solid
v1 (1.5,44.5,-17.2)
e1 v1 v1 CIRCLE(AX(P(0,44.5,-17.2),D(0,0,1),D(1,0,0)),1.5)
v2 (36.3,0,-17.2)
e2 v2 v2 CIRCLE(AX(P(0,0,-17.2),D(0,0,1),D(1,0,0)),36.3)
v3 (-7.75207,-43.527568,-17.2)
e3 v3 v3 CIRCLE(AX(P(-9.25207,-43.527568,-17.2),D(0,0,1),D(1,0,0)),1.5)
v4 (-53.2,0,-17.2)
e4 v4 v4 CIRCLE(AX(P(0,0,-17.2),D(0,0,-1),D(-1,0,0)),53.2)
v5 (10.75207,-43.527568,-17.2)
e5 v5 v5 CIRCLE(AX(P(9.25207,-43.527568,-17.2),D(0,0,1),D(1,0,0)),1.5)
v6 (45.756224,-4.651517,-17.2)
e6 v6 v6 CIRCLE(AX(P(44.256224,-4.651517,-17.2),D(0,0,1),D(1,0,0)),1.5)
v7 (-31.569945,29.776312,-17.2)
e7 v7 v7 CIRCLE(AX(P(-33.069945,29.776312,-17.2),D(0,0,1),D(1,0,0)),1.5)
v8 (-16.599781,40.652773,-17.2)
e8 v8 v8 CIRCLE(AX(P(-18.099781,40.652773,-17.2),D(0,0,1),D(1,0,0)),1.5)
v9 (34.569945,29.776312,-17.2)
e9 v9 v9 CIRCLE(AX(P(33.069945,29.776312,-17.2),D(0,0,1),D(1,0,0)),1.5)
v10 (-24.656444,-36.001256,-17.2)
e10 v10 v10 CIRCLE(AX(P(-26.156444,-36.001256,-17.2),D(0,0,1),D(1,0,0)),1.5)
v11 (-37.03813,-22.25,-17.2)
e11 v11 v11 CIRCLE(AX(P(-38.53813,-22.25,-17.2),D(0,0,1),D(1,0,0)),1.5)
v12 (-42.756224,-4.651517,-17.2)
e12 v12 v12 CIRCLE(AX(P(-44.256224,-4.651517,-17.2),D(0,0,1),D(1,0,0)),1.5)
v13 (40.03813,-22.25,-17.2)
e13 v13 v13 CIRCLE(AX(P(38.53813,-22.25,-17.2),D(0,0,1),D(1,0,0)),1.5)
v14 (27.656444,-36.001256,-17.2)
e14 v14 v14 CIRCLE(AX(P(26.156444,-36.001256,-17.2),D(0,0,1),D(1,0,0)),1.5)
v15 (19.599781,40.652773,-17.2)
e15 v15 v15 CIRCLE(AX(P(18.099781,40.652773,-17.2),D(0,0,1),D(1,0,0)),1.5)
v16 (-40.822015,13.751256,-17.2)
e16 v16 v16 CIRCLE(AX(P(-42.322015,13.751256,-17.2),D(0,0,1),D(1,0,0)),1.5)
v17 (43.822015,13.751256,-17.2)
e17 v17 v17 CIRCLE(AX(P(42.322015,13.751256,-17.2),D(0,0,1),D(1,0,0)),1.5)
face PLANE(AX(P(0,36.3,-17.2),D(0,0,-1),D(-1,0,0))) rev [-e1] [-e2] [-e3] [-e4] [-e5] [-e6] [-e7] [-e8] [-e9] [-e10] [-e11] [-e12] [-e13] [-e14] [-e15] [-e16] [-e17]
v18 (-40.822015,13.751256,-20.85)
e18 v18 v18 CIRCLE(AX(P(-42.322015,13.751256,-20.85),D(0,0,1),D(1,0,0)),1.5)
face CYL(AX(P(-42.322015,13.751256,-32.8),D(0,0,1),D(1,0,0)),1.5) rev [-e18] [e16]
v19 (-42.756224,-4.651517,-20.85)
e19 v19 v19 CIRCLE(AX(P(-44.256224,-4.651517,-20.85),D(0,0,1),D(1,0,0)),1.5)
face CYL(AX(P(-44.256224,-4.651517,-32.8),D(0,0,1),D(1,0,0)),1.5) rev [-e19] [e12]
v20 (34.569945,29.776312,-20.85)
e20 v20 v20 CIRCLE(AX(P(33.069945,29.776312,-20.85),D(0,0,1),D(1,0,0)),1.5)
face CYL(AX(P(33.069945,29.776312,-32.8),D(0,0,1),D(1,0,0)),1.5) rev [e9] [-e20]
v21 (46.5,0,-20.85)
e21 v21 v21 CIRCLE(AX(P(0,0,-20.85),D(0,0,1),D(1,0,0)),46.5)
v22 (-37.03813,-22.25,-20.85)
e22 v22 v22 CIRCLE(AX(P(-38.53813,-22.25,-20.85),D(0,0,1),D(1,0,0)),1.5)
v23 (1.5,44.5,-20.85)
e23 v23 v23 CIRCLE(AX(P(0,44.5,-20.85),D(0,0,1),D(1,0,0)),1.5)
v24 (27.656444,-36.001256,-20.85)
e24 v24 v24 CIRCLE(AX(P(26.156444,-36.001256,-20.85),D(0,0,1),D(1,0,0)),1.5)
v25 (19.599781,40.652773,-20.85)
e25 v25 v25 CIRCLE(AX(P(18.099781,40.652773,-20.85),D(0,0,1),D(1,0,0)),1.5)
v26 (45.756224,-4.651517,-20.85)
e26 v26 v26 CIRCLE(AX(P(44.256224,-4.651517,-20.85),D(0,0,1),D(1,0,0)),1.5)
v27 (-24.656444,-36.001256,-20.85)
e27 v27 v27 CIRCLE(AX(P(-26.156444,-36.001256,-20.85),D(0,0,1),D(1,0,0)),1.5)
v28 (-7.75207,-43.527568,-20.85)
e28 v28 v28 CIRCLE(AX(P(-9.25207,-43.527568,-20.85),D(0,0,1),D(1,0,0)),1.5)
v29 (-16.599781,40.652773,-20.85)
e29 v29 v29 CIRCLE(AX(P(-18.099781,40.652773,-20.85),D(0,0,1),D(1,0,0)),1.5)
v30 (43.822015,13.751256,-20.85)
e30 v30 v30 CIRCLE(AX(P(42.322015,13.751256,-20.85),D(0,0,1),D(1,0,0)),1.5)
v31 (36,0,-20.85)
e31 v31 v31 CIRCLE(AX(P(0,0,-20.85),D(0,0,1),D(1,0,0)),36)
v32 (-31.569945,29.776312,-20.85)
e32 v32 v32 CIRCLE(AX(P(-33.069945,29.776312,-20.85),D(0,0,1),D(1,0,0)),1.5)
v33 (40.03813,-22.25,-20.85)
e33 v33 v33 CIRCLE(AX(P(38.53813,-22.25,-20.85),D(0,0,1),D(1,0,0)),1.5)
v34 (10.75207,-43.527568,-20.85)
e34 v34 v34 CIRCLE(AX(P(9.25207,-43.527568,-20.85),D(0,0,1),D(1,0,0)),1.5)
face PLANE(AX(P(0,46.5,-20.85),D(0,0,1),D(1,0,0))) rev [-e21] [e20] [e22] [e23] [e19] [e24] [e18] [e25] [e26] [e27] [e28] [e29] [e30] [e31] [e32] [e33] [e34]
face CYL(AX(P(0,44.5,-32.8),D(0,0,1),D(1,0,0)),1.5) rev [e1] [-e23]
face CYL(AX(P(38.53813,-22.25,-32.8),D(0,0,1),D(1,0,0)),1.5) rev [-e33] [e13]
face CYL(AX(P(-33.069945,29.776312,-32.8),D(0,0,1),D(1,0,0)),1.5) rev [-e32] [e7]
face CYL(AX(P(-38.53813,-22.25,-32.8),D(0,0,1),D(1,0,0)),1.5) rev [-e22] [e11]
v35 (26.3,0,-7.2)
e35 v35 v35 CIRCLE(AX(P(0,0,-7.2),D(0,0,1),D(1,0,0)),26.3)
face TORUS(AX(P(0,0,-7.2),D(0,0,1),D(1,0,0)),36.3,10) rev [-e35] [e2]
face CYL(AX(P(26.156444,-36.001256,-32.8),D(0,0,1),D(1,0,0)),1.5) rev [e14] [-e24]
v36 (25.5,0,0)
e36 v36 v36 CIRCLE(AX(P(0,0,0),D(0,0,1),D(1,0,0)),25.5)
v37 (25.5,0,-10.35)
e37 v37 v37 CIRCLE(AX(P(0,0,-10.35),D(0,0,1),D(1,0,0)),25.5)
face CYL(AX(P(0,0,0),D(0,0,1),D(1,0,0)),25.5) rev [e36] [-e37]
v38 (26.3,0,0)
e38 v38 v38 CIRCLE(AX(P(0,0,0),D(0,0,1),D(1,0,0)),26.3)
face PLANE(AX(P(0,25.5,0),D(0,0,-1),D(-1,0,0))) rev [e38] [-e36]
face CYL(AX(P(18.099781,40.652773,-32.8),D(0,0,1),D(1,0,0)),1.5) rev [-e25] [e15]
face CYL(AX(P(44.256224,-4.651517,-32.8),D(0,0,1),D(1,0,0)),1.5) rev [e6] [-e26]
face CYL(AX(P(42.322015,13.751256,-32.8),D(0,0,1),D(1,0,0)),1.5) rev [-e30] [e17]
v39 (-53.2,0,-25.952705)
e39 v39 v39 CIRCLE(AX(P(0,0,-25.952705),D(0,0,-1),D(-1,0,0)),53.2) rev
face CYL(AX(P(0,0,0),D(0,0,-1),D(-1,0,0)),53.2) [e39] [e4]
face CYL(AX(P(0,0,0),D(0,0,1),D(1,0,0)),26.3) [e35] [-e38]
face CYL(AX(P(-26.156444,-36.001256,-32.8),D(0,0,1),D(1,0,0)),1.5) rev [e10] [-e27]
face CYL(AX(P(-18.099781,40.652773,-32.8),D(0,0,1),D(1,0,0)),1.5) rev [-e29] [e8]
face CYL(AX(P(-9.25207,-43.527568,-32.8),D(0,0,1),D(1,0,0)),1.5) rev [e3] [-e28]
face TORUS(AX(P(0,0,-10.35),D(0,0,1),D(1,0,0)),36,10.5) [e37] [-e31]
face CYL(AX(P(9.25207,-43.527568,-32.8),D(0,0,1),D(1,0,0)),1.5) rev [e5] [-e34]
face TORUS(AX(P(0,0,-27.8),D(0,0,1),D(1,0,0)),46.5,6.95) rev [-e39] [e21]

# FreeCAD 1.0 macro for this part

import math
import FreeCAD as App
import Part
import Sketcher
from FreeCAD import Vector

doc = App.newDocument("Part")
body = doc.addObject("PartDesign::Body", "Body")

# Sketch on YZ plane
sketch1 = body.newObject("Sketcher::SketchObject", "Sketch")
sketch1.AttachmentSupport = (doc.getObject("YZ_Plane"), [""])
sketch1.MapMode = "FlatFace"
sketch1.addGeometry([
    Part.LineSegment(Vector(26.3, 0, 0), Vector(25.5, 0, 0)),  # 0
    Part.LineSegment(Vector(25.5, 0, 0), Vector(25.5, -10.3, 0)),  # 1
    Part.ArcOfCircle(Part.Circle(Vector(36, -10.3, 0), Vector(0, 0, 1), 10.5), math.radians(-180), math.radians(-90)),  # 2
    Part.LineSegment(Vector(36, -20.9, 0), Vector(46.5, -20.9, 0)),  # 3
    Part.ArcOfCircle(Part.Circle(Vector(46.5, -27.8, 0), Vector(0, 0, 1), 7), math.radians(0), math.radians(90)),  # 4
    Part.LineSegment(Vector(53.5, -27.8, 0), Vector(54.6, -27.8, 0)),  # 5
    Part.LineSegment(Vector(54.6, -27.8, 0), Vector(54.6, -32.8, 0)),  # 6
    Part.LineSegment(Vector(54.6, -32.8, 0), Vector(57.1, -32.8, 0)),  # 7
    Part.LineSegment(Vector(57.1, -32.8, 0), Vector(57.1, -22, 0)),  # 8
    Part.LineSegment(Vector(57.1, -22, 0), Vector(56, -22, 0)),  # 9
    Part.LineSegment(Vector(56, -22, 0), Vector(56, -17.2, 0)),  # 10
    Part.LineSegment(Vector(56, -17.2, 0), Vector(36.3, -17.2, 0)),  # 11
    Part.ArcOfCircle(Part.Circle(Vector(36.3, -7.2, 0), Vector(0, 0, 1), 10), math.radians(180), math.radians(270)),  # 12
    Part.LineSegment(Vector(26.3, -7.2, 0), Vector(26.3, 0, 0)),  # 13
], False)
sketch1.addConstraint([
    Sketcher.Constraint("Coincident", 0, 2, 1, 1),
    Sketcher.Constraint("Tangent", 1, 2, 2, 1),
    Sketcher.Constraint("Tangent", 2, 2, 3, 1),
    Sketcher.Constraint("Tangent", 3, 2, 4, 2),
    Sketcher.Constraint("Coincident", 4, 1, 5, 1),
    Sketcher.Constraint("Coincident", 5, 2, 6, 1),
    Sketcher.Constraint("Coincident", 6, 2, 7, 1),
    Sketcher.Constraint("Coincident", 7, 2, 8, 1),
    Sketcher.Constraint("Coincident", 8, 2, 9, 1),
    Sketcher.Constraint("Coincident", 9, 2, 10, 1),
    Sketcher.Constraint("Coincident", 10, 2, 11, 1),
    Sketcher.Constraint("Tangent", 11, 2, 12, 2),
    Sketcher.Constraint("Tangent", 12, 1, 13, 1),
    Sketcher.Constraint("Coincident", 13, 2, 0, 1),
    Sketcher.Constraint("Horizontal", 0),
    Sketcher.Constraint("Vertical", 1),
    Sketcher.Constraint("Horizontal", 3),
    Sketcher.Constraint("Horizontal", 5),
    Sketcher.Constraint("Vertical", 6),
    Sketcher.Constraint("Horizontal", 7),
    Sketcher.Constraint("Vertical", 8),
    Sketcher.Constraint("Horizontal", 9),
    Sketcher.Constraint("Vertical", 10),
    Sketcher.Constraint("Horizontal", 11),
    Sketcher.Constraint("Vertical", 13),
    Sketcher.Constraint("PointOnObject", 0, 2, -1),
    Sketcher.Constraint("Equal", 5, 9),
    Sketcher.Constraint("Radius", 12, 10.0),
    Sketcher.Constraint("Radius", 2, 10.5),
    Sketcher.Constraint("DistanceY", 6, 2, 6, 1, 5.0),
    Sketcher.Constraint("Radius", 4, 6.95),
    Sketcher.Constraint("DistanceX", 0, 2, 0, 1, 0.8),
    Sketcher.Constraint("DistanceX", 3, 1, 3, 2, 10.5),
    Sketcher.Constraint("DistanceX", 11, 2, 11, 1, 19.7),
    Sketcher.Constraint("DistanceY", 8, 1, 8, 2, 10.8),
    Sketcher.Constraint("DistanceY", 10, 1, 10, 2, 4.8),
    Sketcher.Constraint("DistanceY", 13, 1, 13, 2, 7.2),
    Sketcher.Constraint("DistanceX", -1, 1, 2, 3, 36.0),
    Sketcher.Constraint("DistanceY", 6, 2, 4, 3, 5.0),
    Sketcher.Constraint("DistanceX", 5, 1, 5, 2, 1.15),
])
revolution = body.newObject("PartDesign::Revolution", "Revolution")
revolution.Profile = sketch1
revolution.ReferenceAxis = (sketch1, ["V_Axis"])
revolution.Angle = 360

# Sketch on XY plane
sketch2 = body.newObject("Sketcher::SketchObject", "Sketch001")
sketch2.AttachmentSupport = (doc.getObject("XY_Plane"), [""])
sketch2.MapMode = "FlatFace"
sketch2.AttachmentOffset = App.Placement(Vector(0, 0, -17.2), App.Rotation())
sketch2.addGeometry([
    Part.Circle(Vector(0, 44.5, 0), Vector(0, 0, 1), 1.5),  # 0
    Part.Circle(Vector(18.1, 40.7, 0), Vector(0, 0, 1), 1.5),  # 1
    Part.Circle(Vector(33.1, 29.8, 0), Vector(0, 0, 1), 1.5),  # 2
    Part.Circle(Vector(42.3, 13.8, 0), Vector(0, 0, 1), 1.5),  # 3
    Part.Circle(Vector(44.3, -4.7, 0), Vector(0, 0, 1), 1.5),  # 4
    Part.Circle(Vector(38.5, -22.2, 0), Vector(0, 0, 1), 1.5),  # 5
    Part.Circle(Vector(26.2, -36, 0), Vector(0, 0, 1), 1.5),  # 6
    Part.Circle(Vector(9.3, -43.5, 0), Vector(0, 0, 1), 1.5),  # 7
    Part.Circle(Vector(-9.3, -43.5, 0), Vector(0, 0, 1), 1.5),  # 8
    Part.Circle(Vector(-26.2, -36, 0), Vector(0, 0, 1), 1.5),  # 9
    Part.Circle(Vector(-38.5, -22.2, 0), Vector(0, 0, 1), 1.5),  # 10
    Part.Circle(Vector(-44.3, -4.7, 0), Vector(0, 0, 1), 1.5),  # 11
    Part.Circle(Vector(-42.3, 13.8, 0), Vector(0, 0, 1), 1.5),  # 12
    Part.Circle(Vector(-33.1, 29.8, 0), Vector(0, 0, 1), 1.5),  # 13
    Part.Circle(Vector(-18.1, 40.7, 0), Vector(0, 0, 1), 1.5),  # 14
], False)
sketch2.addConstraint([
    Sketcher.Constraint("Equal", 0, 1),
    Sketcher.Constraint("Equal", 1, 2),
    Sketcher.Constraint("Equal", 2, 3),
    Sketcher.Constraint("Equal", 3, 4),
    Sketcher.Constraint("Equal", 4, 5),
    Sketcher.Constraint("Equal", 5, 6),
    Sketcher.Constraint("Equal", 6, 7),
    Sketcher.Constraint("Equal", 7, 8),
    Sketcher.Constraint("Equal", 8, 9),
    Sketcher.Constraint("Equal", 9, 10),
    Sketcher.Constraint("Equal", 10, 11),
    Sketcher.Constraint("Equal", 11, 12),
    Sketcher.Constraint("Equal", 12, 13),
    Sketcher.Constraint("Equal", 13, 14),
    Sketcher.Constraint("Symmetric", 7, 3, 8, 3, -2),
    Sketcher.Constraint("Symmetric", 6, 3, 9, 3, -2),
    Sketcher.Constraint("Symmetric", 5, 3, 10, 3, -2),
    Sketcher.Constraint("Symmetric", 4, 3, 11, 3, -2),
    Sketcher.Constraint("Symmetric", 3, 3, 12, 3, -2),
    Sketcher.Constraint("Symmetric", 2, 3, 13, 3, -2),
    Sketcher.Constraint("Symmetric", 1, 3, 14, 3, -2),
    Sketcher.Constraint("PointOnObject", 0, 3, -2),
    Sketcher.Constraint("Diameter", 0, 3.0),
    Sketcher.Constraint("DistanceY", -1, 1, 0, 3, 44.5),
    Sketcher.Constraint("DistanceY", 5, 3, -1, 1, 22.25),
    Sketcher.Constraint("DistanceX", 6, 3, 2, 3, 6.913501),
    Sketcher.Constraint("DistanceX", 8, 3, 5, 3, 47.790201),
    Sketcher.Constraint("DistanceX", -1, 1, 1, 3, 18.099781),
    Sketcher.Constraint("DistanceY", -1, 1, 2, 3, 29.776312),
    Sketcher.Constraint("DistanceX", -1, 1, 5, 3, 38.53813),
    Sketcher.Constraint("DistanceY", 7, 3, -1, 1, 43.527568),
    Sketcher.Constraint("DistanceY", 2, 3, 1, 3, 10.876461),
    Sketcher.Constraint("DistanceX", 2, 3, 3, 3, 9.25207),
    Sketcher.Constraint("DistanceX", 3, 3, 4, 3, 1.934209),
    Sketcher.Constraint("DistanceY", 4, 3, 2, 3, 34.427829),
    Sketcher.Constraint("DistanceY", 6, 3, 4, 3, 31.34974),
    Sketcher.Constraint("DistanceX", 9, 3, 4, 3, 70.412668),
    Sketcher.Constraint("DistanceY", -1, 1, 3, 3, 13.751256),
])
pocket1 = body.newObject("PartDesign::Pocket", "Pocket")
pocket1.Profile = sketch2
pocket1.Type = "ThroughAll"

# Sketch on XZ plane
sketch3 = body.newObject("Sketcher::SketchObject", "Sketch002")
sketch3.AttachmentSupport = (doc.getObject("XZ_Plane"), [""])
sketch3.MapMode = "FlatFace"
sketch3.AttachmentOffset = App.Placement(Vector(0, 0, -57.5), App.Rotation())
sketch3.addGeometry(Part.Circle(Vector(0, -19.5, 0), Vector(0, 0, 1), 1), False)
sketch3.addConstraint([
    Sketcher.Constraint("PointOnObject", 0, 3, -2),
    Sketcher.Constraint("Diameter", 0, 2.0),
    Sketcher.Constraint("DistanceY", 0, 3, -1, 1, 19.5),
])
pocket2 = body.newObject("PartDesign::Pocket", "Pocket001")
pocket2.Profile = sketch3
pocket2.Length = 3
pocket2.Reversed = True
doc.recompute()

polarpattern = body.newObject("PartDesign::PolarPattern", "PolarPattern")
polarpattern.Originals = [pocket2]
polarpattern.Axis = (doc.getObject("Z_Axis"), [""])
polarpattern.Angle = 360
polarpattern.Occurrences = 4
body.Tip = polarpattern

# Sketch on XY plane
sketch4 = body.newObject("Sketcher::SketchObject", "Sketch003")
sketch4.AttachmentSupport = (doc.getObject("XY_Plane"), [""])
sketch4.MapMode = "FlatFace"
sketch4.AttachmentOffset = App.Placement(Vector(0, 0, -32.8), App.Rotation())
sketch4.addGeometry([
    Part.Circle(Vector(0, 0, 0), Vector(0, 0, 1), 57),
    Part.Circle(Vector(0, 0, 0), Vector(0, 0, 1), 53),
], False)
sketch4.addConstraint([
    Sketcher.Constraint("Coincident", 0, 3, -1, 1),
    Sketcher.Constraint("Coincident", 1, 3, -1, 1),
    Sketcher.Constraint("Diameter", 0, 114.3),
    Sketcher.Constraint("Diameter", 1, 106.4),
])
pocket3 = body.newObject("PartDesign::Pocket", "Pocket002")
pocket3.Profile = sketch4
pocket3.Type = "ThroughAll"
pocket3.Reversed = True

doc.recompute()
